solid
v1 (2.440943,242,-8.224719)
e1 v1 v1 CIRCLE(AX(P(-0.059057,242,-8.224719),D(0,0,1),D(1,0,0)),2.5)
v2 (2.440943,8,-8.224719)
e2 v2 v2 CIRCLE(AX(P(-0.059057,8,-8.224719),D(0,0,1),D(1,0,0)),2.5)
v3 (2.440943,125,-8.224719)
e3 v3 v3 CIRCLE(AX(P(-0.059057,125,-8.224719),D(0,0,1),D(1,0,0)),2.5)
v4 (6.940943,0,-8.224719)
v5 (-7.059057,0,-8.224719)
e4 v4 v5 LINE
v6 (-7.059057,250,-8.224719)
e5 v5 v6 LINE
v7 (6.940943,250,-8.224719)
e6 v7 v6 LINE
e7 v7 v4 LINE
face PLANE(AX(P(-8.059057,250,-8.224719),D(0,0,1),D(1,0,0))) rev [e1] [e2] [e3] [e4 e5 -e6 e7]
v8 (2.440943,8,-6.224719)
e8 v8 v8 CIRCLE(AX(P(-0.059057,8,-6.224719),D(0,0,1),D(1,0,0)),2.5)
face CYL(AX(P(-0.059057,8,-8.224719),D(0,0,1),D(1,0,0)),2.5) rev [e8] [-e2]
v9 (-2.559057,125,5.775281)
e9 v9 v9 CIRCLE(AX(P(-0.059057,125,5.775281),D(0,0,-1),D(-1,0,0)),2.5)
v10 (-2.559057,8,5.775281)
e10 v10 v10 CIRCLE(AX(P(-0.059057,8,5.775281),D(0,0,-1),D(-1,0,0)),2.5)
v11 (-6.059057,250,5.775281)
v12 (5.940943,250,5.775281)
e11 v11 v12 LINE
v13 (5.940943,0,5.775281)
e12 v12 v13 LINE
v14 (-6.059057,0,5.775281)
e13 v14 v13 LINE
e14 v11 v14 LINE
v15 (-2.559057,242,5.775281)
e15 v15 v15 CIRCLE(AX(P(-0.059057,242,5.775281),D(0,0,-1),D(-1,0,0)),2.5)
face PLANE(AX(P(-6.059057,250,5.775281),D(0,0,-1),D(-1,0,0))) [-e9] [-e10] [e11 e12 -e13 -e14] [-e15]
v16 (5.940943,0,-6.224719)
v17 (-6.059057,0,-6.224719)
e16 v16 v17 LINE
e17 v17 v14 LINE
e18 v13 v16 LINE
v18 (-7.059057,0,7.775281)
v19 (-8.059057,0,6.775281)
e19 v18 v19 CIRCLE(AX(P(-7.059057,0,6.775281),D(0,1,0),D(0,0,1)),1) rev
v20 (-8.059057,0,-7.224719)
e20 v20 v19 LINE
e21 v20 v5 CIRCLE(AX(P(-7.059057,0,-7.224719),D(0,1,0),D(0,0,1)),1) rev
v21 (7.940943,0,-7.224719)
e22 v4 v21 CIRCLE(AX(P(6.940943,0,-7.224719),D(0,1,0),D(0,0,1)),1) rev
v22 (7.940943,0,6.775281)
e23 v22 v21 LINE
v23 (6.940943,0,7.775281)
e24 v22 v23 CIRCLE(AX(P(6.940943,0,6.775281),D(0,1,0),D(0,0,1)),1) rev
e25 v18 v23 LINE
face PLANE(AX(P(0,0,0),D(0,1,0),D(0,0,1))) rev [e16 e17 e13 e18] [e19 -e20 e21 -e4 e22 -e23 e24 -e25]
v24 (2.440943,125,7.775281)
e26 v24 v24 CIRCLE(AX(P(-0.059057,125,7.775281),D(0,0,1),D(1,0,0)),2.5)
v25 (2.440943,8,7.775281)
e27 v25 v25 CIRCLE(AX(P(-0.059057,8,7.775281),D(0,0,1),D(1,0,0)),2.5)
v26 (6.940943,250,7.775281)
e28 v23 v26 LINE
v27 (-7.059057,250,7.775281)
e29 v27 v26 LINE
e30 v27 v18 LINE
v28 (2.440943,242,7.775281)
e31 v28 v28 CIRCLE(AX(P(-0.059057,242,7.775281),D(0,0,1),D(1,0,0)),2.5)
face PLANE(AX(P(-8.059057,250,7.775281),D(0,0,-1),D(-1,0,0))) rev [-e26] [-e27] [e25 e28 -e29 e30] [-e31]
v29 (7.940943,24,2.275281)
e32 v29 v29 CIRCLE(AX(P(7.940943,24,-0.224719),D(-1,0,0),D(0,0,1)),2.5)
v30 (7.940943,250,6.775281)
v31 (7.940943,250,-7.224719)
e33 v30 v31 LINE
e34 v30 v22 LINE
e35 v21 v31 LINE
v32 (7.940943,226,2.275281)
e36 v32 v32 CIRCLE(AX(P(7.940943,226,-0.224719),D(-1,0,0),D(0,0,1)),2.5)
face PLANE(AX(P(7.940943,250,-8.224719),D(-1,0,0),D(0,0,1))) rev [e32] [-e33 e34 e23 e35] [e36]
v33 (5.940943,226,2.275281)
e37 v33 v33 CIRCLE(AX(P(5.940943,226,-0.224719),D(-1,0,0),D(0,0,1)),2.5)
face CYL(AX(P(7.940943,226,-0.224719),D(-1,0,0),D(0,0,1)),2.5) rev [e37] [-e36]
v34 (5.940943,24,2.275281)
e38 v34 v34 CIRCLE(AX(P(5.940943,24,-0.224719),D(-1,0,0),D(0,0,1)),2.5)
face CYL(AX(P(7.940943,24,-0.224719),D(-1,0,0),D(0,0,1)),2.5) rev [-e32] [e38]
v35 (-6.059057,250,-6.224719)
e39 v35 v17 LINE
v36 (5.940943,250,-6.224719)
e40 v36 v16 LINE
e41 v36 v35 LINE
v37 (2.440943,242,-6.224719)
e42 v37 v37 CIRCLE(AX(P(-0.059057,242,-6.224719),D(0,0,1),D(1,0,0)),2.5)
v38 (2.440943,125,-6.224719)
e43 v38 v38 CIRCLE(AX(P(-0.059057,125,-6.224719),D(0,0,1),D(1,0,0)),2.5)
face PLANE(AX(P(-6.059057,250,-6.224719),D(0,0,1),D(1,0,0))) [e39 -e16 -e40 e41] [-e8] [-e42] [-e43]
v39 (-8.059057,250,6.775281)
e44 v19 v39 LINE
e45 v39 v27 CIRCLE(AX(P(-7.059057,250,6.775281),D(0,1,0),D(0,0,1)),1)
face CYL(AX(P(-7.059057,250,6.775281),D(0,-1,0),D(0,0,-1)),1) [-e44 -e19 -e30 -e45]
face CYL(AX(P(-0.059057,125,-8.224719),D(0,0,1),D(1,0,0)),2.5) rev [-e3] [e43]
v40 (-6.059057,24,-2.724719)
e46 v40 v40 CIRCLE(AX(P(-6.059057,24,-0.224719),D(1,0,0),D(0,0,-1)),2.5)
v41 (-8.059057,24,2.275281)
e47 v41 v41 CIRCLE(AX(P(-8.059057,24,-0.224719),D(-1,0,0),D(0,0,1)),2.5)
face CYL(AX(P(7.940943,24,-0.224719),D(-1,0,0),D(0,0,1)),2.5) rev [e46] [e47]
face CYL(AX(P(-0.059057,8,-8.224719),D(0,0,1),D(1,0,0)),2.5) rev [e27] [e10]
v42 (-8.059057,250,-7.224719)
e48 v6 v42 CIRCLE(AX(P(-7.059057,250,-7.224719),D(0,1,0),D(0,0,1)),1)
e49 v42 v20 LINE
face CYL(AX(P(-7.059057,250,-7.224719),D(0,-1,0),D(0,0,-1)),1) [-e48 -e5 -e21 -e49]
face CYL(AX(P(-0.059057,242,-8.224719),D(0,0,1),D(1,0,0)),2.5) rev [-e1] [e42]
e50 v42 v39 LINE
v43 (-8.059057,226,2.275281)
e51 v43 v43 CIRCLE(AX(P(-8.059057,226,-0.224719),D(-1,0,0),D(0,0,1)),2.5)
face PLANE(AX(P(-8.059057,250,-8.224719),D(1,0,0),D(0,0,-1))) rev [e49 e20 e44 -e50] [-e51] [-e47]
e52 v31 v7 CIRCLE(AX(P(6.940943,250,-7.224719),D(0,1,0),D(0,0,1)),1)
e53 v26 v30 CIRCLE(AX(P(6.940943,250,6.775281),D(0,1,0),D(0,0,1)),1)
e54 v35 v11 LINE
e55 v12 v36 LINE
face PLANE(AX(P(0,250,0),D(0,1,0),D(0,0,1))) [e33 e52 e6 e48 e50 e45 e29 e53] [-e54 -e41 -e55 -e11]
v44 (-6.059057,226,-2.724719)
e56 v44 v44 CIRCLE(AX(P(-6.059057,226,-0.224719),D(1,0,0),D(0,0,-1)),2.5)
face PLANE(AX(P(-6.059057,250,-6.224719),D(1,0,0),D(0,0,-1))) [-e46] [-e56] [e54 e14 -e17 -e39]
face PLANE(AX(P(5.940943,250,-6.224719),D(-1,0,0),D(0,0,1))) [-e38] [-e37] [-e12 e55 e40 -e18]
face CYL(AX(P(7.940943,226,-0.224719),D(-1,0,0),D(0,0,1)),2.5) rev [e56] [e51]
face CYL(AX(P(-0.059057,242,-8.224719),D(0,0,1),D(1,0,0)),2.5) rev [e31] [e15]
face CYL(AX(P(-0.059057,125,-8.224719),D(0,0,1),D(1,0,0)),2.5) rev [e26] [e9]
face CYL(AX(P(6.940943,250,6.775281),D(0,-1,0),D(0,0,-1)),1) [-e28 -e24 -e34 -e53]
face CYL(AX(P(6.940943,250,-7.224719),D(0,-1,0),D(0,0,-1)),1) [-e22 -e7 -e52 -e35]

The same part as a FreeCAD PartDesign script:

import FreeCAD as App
import Part
import Sketcher

V = App.Vector


def edges_at(feature, points):
    """Names of the edges that pass closest to the given points."""
    edges = feature.Shape.Edges
    near = lambda p: min(range(len(edges)), key=lambda i: edges[i].distToShape(Part.Vertex(*p))[0])
    return sorted({f"Edge{near(p) + 1}" for p in points})


def add_polygon(sketch, points):
    """Adds a closed chain of lines whose ends are joined by coincident constraints."""
    first, n = sketch.GeometryCount, len(points)
    for a, b in zip(points, points[1:] + points[:1]):
        sketch.addGeometry(Part.LineSegment(App.Vector(*a, 0), App.Vector(*b, 0)), False)
    for i in range(n):
        sketch.addConstraint(Sketcher.Constraint("Coincident", first + i, 2, first + (i + 1) % n, 1))

doc = App.newDocument("Part")
params = doc.addObject("Spreadsheet::Sheet", "Params")
for row, (alias, value) in enumerate([
    ("sketch1_width", "16 mm"),
    ("sketch1_width2", "12 mm"),
    ("pad1_length", "250 mm"),
    ("fillet_radius", "1 mm"),
    ("sketch2_diameter", "5 mm"),
    ("pocket1_length", "16 mm"),
    ("sketch3_diameter", "5 mm"),
    ("pocket2_length", "16 mm"),
    ("sketch4_diameter", "5 mm"),
    ("pocket3_length", "16 mm"),
    ("sketch5_diameter", "5 mm"),
    ("pocket4_length", "16 mm"),
], start=1):
    params.set(f"A{row}", alias)
    params.set(f"B{row}", "=" + value)
    params.setAlias(f"B{row}", alias)

body = doc.addObject("PartDesign::Body", "Body")

sketch1 = body.newObject("Sketcher::SketchObject", "Sketch")
sketch1.AttachmentSupport = (doc.getObject("XZ_Plane"), [""])
sketch1.MapMode = "FlatFace"
add_polygon(sketch1, [(-8, -8), (-8, 8), (8, 8), (8, -8)])
add_polygon(sketch1, [(6, 6), (-6, 6), (-6, -6), (6, -6)])
sketch1.addConstraint(Sketcher.Constraint("Vertical", 0))
sketch1.addConstraint(Sketcher.Constraint("Horizontal", 1))
sketch1.addConstraint(Sketcher.Constraint("Vertical", 2))
sketch1.addConstraint(Sketcher.Constraint("Horizontal", 3))
sketch1.addConstraint(Sketcher.Constraint("Horizontal", 4))
sketch1.addConstraint(Sketcher.Constraint("Vertical", 5))
sketch1.addConstraint(Sketcher.Constraint("Horizontal", 6))
sketch1.addConstraint(Sketcher.Constraint("Vertical", 7))
sketch1.addConstraint(Sketcher.Constraint("Equal", 3, 0))
sketch1.addConstraint(Sketcher.Constraint("Equal", 6, 5))
sketch1.addConstraint(Sketcher.Constraint("DistanceX", 1, 1, 1, 2, 16.0))
sketch1.addConstraint(Sketcher.Constraint("DistanceX", 4, 2, 4, 1, 12.0))
sketch1.addConstraint(Sketcher.Constraint("DistanceX", 0, 2, 4, 2, 2.0))
sketch1.addConstraint(Sketcher.Constraint("DistanceY", 4, 2, 0, 2, 2.0))
sketch1.addConstraint(Sketcher.Constraint("DistanceY", -1, 1, 0, 2, 7.775281))
sketch1.addConstraint(Sketcher.Constraint("DistanceX", 0, 2, -1, 1, 8.059057))
sketch1.setExpression("Constraints[18]", "Params.sketch1_width")
sketch1.setExpression("Constraints[19]", "Params.sketch1_width2")
pad1 = body.newObject("PartDesign::Pad", "Pad")
pad1.Profile = sketch1
pad1.setExpression("Length", "Params.pad1_length")
pad1.Reversed = True
doc.recompute()

fillet = body.newObject("PartDesign::Fillet", "Fillet")
fillet.Base = (pad1, edges_at(pad1, [
    (-8.059, 125, -8.225),
    (7.941, 125, -8.225),
    (7.941, 125, 7.775),
    (-8.059, 125, 7.775),
]))
fillet.setExpression("Radius", "Params.fillet_radius")

sketch2 = body.newObject("Sketcher::SketchObject", "Sketch001")
sketch2.AttachmentSupport = (doc.getObject("XY_Plane"), [""])
sketch2.MapMode = "FlatFace"
sketch2.AttachmentOffset = App.Placement(V(0, 0, 7.775281), App.Rotation())
sketch2.addGeometry(Part.Circle(V(-0.1, 8, 0), V(0, 0, 1), 2.5), False)
sketch2.addConstraint(Sketcher.Constraint("Diameter", 0, 5.0))
sketch2.addConstraint(Sketcher.Constraint("DistanceY", -1, 1, 0, 3, 8.0))
sketch2.addConstraint(Sketcher.Constraint("DistanceX", 0, 3, -1, 1, 0.059057))
sketch2.setExpression("Constraints[0]", "Params.sketch2_diameter")
pocket1 = body.newObject("PartDesign::Pocket", "Pocket")
pocket1.Profile = sketch2
pocket1.setExpression("Length", "Params.pocket1_length")

sketch3 = body.newObject("Sketcher::SketchObject", "Sketch002")
sketch3.AttachmentSupport = (doc.getObject("XY_Plane"), [""])
sketch3.MapMode = "FlatFace"
sketch3.AttachmentOffset = App.Placement(V(0, 0, 7.775281), App.Rotation())
sketch3.addGeometry(Part.Circle(V(-0.1, 242, 0), V(0, 0, 1), 2.5), False)
sketch3.addConstraint(Sketcher.Constraint("Diameter", 0, 5.0))
sketch3.addConstraint(Sketcher.Constraint("DistanceY", -1, 1, 0, 3, 242.0))
sketch3.addConstraint(Sketcher.Constraint("DistanceX", 0, 3, -1, 1, 0.059057))
sketch3.setExpression("Constraints[0]", "Params.sketch3_diameter")
pocket2 = body.newObject("PartDesign::Pocket", "Pocket001")
pocket2.Profile = sketch3
pocket2.setExpression("Length", "Params.pocket2_length")

sketch4 = body.newObject("Sketcher::SketchObject", "Sketch003")
sketch4.AttachmentSupport = (doc.getObject("YZ_Plane"), [""])
sketch4.MapMode = "FlatFace"
sketch4.AttachmentOffset = App.Placement(V(0, 0, -8.059057), App.Rotation())
sketch4.addGeometry(Part.Circle(V(24, -0.2, 0), V(0, 0, 1), 2.5), False)
sketch4.addGeometry(Part.Circle(V(226, -0.2, 0), V(0, 0, 1), 2.5), False)
sketch4.addConstraint(Sketcher.Constraint("Equal", 0, 1))
sketch4.addConstraint(Sketcher.Constraint("Horizontal", 0, 3, 1, 3))
sketch4.addConstraint(Sketcher.Constraint("Diameter", 0, 5.0))
sketch4.addConstraint(Sketcher.Constraint("DistanceX", -1, 1, 0, 3, 24.0))
sketch4.addConstraint(Sketcher.Constraint("DistanceX", -1, 1, 1, 3, 226.0))
sketch4.addConstraint(Sketcher.Constraint("DistanceY", 0, 3, -1, 1, 0.224719))
sketch4.setExpression("Constraints[2]", "Params.sketch4_diameter")
pocket3 = body.newObject("PartDesign::Pocket", "Pocket002")
pocket3.Profile = sketch4
pocket3.setExpression("Length", "Params.pocket3_length")
pocket3.Reversed = True

sketch5 = body.newObject("Sketcher::SketchObject", "Sketch004")
sketch5.AttachmentSupport = (doc.getObject("XY_Plane"), [""])
sketch5.MapMode = "FlatFace"
sketch5.AttachmentOffset = App.Placement(V(0, 0, 7.775281), App.Rotation())
sketch5.addGeometry(Part.Circle(V(-0.1, 125, 0), V(0, 0, 1), 2.5), False)
sketch5.addConstraint(Sketcher.Constraint("Diameter", 0, 5.0))
sketch5.addConstraint(Sketcher.Constraint("DistanceY", -1, 1, 0, 3, 125.0))
sketch5.addConstraint(Sketcher.Constraint("DistanceX", 0, 3, -1, 1, 0.059057))
sketch5.setExpression("Constraints[0]", "Params.sketch5_diameter")
pocket4 = body.newObject("PartDesign::Pocket", "Pocket003")
pocket4.Profile = sketch5
pocket4.setExpression("Length", "Params.pocket4_length")

doc.recompute()
